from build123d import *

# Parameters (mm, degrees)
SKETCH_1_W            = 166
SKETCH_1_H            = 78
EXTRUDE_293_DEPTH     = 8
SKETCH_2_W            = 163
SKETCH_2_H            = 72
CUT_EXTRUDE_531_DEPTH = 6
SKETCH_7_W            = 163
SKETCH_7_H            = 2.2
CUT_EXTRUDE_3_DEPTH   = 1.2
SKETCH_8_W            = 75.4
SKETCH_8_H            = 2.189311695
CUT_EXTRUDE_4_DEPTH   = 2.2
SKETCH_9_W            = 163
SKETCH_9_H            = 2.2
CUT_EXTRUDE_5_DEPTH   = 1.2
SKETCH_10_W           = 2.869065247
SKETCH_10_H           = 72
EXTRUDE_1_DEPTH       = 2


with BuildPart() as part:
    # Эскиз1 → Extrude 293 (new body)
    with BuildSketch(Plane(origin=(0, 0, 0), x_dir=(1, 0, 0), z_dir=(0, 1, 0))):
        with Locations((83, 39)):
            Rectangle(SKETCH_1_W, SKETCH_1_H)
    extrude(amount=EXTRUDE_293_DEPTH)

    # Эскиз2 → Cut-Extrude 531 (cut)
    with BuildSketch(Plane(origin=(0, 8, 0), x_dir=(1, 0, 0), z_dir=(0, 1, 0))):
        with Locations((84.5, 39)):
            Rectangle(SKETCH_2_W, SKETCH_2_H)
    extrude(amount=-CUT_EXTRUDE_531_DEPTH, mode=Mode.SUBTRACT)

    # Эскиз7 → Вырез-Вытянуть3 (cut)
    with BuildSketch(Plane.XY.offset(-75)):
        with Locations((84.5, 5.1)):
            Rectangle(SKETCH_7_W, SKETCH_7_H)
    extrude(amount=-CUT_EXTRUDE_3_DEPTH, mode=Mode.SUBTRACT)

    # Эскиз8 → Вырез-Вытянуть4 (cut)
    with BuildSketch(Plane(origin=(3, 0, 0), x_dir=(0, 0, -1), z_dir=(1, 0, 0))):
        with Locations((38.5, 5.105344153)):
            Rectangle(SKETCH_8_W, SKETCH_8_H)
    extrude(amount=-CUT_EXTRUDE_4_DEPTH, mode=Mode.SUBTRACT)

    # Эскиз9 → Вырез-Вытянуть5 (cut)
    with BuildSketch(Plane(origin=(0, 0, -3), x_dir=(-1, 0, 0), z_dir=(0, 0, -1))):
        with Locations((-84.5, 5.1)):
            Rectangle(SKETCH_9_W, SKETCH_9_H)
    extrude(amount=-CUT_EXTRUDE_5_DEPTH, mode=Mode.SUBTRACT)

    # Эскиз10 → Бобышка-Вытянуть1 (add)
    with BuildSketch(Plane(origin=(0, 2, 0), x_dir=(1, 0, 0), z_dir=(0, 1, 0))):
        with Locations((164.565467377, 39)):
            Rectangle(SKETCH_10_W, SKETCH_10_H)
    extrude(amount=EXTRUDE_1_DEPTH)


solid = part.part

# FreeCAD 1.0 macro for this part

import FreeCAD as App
import Part
import Sketcher
Q = App.Units.Quantity

doc = App.newDocument("Part")
params = doc.addObject("Spreadsheet::Sheet", "Params")
for row, (alias, value) in enumerate([
    ("sketch1_width", "166 mm"),
    ("sketch1_height", "78 mm"),
    ("pad1_length", "8 mm"),
    ("sketch2_width", "163 mm"),
    ("sketch2_height", "72 mm"),
    ("pocket1_length", "6 mm"),
    ("sketch3_width", "163 mm"),
    ("sketch3_height", "2.2 mm"),
    ("pocket2_length", "1.2 mm"),
    ("sketch4_height", "75.4 mm"),
    ("pocket3_length", "2.2 mm"),
    ("sketch5_width", "163 mm"),
    ("sketch5_height", "2.2 mm"),
    ("pocket4_length", "1.2 mm"),
    ("sketch6_height", "72 mm"),
    ("pad2_length", "2 mm"),
], start=1):
    params.set(f"A{row}", alias)
    params.set(f"B{row}", "=" + value)
    params.setAlias(f"B{row}", alias)

body = doc.addObject("PartDesign::Body", "Body")

# Sketch on XZ plane
sketch1 = body.newObject("Sketcher::SketchObject", "Sketch")
sketch1.AttachmentSupport = (doc.getObject("XZ_Plane"), [""])
sketch1.MapMode = "FlatFace"
sketch1.addGeometry([
    Part.LineSegment(App.Vector(0, -78, 0), App.Vector(0, 0, 0)),
    Part.LineSegment(App.Vector(0, 0, 0), App.Vector(166, 0, 0)),
    Part.LineSegment(App.Vector(166, 0, 0), App.Vector(166, -78, 0)),
    Part.LineSegment(App.Vector(166, -78, 0), App.Vector(0, -78, 0)),
], False)
sketch1.addConstraint([
    Sketcher.Constraint("Coincident", 0, 2, 1, 1),
    Sketcher.Constraint("Coincident", 1, 2, 2, 1),
    Sketcher.Constraint("Coincident", 2, 2, 3, 1),
    Sketcher.Constraint("Coincident", 3, 2, 0, 1),
    Sketcher.Constraint("Vertical", 0),
    Sketcher.Constraint("Horizontal", 1),
    Sketcher.Constraint("Vertical", 2),
    Sketcher.Constraint("Horizontal", 3),
    Sketcher.Constraint("Coincident", 0, 2, -1, 1),
    Sketcher.Constraint("DistanceX", 1, 1, 1, 2, Q("166 mm")),
    Sketcher.Constraint("DistanceY", 0, 1, 0, 2, Q("78 mm")),
])
sketch1.setExpression("Constraints[9]", "Params.sketch1_width")
sketch1.setExpression("Constraints[10]", "Params.sketch1_height")
pad1 = body.newObject("PartDesign::Pad", "Pad")
pad1.Profile = sketch1
pad1.setExpression("Length", "Params.pad1_length")
pad1.Reversed = True

# Sketch on XZ plane
sketch2 = body.newObject("Sketcher::SketchObject", "Sketch001")
sketch2.AttachmentSupport = (doc.getObject("XZ_Plane"), [""])
sketch2.MapMode = "FlatFace"
sketch2.AttachmentOffset = App.Placement(App.Vector(0, 0, -8), App.Rotation())
sketch2.addGeometry([
    Part.LineSegment(App.Vector(3, -75, 0), App.Vector(3, -3, 0)),
    Part.LineSegment(App.Vector(3, -3, 0), App.Vector(166, -3, 0)),
    Part.LineSegment(App.Vector(166, -3, 0), App.Vector(166, -75, 0)),
    Part.LineSegment(App.Vector(166, -75, 0), App.Vector(3, -75, 0)),
], False)
sketch2.addConstraint([
    Sketcher.Constraint("Coincident", 0, 2, 1, 1),
    Sketcher.Constraint("Coincident", 1, 2, 2, 1),
    Sketcher.Constraint("Coincident", 2, 2, 3, 1),
    Sketcher.Constraint("Coincident", 3, 2, 0, 1),
    Sketcher.Constraint("Vertical", 0),
    Sketcher.Constraint("Horizontal", 1),
    Sketcher.Constraint("Vertical", 2),
    Sketcher.Constraint("Horizontal", 3),
    Sketcher.Constraint("DistanceX", 1, 1, 1, 2, Q("163 mm")),
    Sketcher.Constraint("DistanceY", 0, 1, 0, 2, Q("72 mm")),
    Sketcher.Constraint("DistanceX", -1, 1, 0, 2, Q("3 mm")),
    Sketcher.Constraint("DistanceY", 0, 2, -1, 1, Q("3 mm")),
])
sketch2.setExpression("Constraints[8]", "Params.sketch2_width")
sketch2.setExpression("Constraints[9]", "Params.sketch2_height")
pocket1 = body.newObject("PartDesign::Pocket", "Pocket")
pocket1.Profile = sketch2
pocket1.setExpression("Length", "Params.pocket1_length")
pocket1.Reversed = True

# Sketch on XY plane
sketch3 = body.newObject("Sketcher::SketchObject", "Sketch002")
sketch3.AttachmentSupport = (doc.getObject("XY_Plane"), [""])
sketch3.MapMode = "FlatFace"
sketch3.AttachmentOffset = App.Placement(App.Vector(0, 0, -75), App.Rotation())
sketch3.addGeometry([
    Part.LineSegment(App.Vector(3, 6.2, 0), App.Vector(3, 4, 0)),
    Part.LineSegment(App.Vector(3, 4, 0), App.Vector(166, 4, 0)),
    Part.LineSegment(App.Vector(166, 4, 0), App.Vector(166, 6.2, 0)),
    Part.LineSegment(App.Vector(166, 6.2, 0), App.Vector(3, 6.2, 0)),
], False)
sketch3.addConstraint([
    Sketcher.Constraint("Coincident", 0, 2, 1, 1),
    Sketcher.Constraint("Coincident", 1, 2, 2, 1),
    Sketcher.Constraint("Coincident", 2, 2, 3, 1),
    Sketcher.Constraint("Coincident", 3, 2, 0, 1),
    Sketcher.Constraint("Vertical", 0),
    Sketcher.Constraint("Horizontal", 1),
    Sketcher.Constraint("Vertical", 2),
    Sketcher.Constraint("Horizontal", 3),
    Sketcher.Constraint("DistanceX", 1, 1, 1, 2, Q("163 mm")),
    Sketcher.Constraint("DistanceY", 0, 2, 0, 1, Q("2.2 mm")),
    Sketcher.Constraint("DistanceX", -1, 1, 0, 2, Q("3 mm")),
    Sketcher.Constraint("DistanceY", -1, 1, 0, 2, Q("4 mm")),
])
sketch3.setExpression("Constraints[8]", "Params.sketch3_width")
sketch3.setExpression("Constraints[9]", "Params.sketch3_height")
pocket2 = body.newObject("PartDesign::Pocket", "Pocket001")
pocket2.Profile = sketch3
pocket2.setExpression("Length", "Params.pocket2_length")

# Sketch on YZ plane
sketch4 = body.newObject("Sketcher::SketchObject", "Sketch003")
sketch4.AttachmentSupport = (doc.getObject("YZ_Plane"), [""])
sketch4.MapMode = "FlatFace"
sketch4.AttachmentOffset = App.Placement(App.Vector(0, 0, 3), App.Rotation())
sketch4.addGeometry([
    Part.LineSegment(App.Vector(6.2, -0.8, 0), App.Vector(4, -0.8, 0)),
    Part.LineSegment(App.Vector(4, -0.8, 0), App.Vector(4, -76.2, 0)),
    Part.LineSegment(App.Vector(4, -76.2, 0), App.Vector(6.2, -76.2, 0)),
    Part.LineSegment(App.Vector(6.2, -76.2, 0), App.Vector(6.2, -0.8, 0)),
], False)
sketch4.addConstraint([
    Sketcher.Constraint("Coincident", 0, 2, 1, 1),
    Sketcher.Constraint("Coincident", 1, 2, 2, 1),
    Sketcher.Constraint("Coincident", 2, 2, 3, 1),
    Sketcher.Constraint("Coincident", 3, 2, 0, 1),
    Sketcher.Constraint("Horizontal", 0),
    Sketcher.Constraint("Vertical", 1),
    Sketcher.Constraint("Horizontal", 2),
    Sketcher.Constraint("Vertical", 3),
    Sketcher.Constraint("DistanceY", 1, 2, 1, 1, Q("75.4 mm")),
    Sketcher.Constraint("DistanceY", 0, 2, -1, 1, Q("0.8 mm")),
    Sketcher.Constraint("DistanceX", -1, 1, 2, 2, Q("6.2 mm")),
    Sketcher.Constraint("DistanceX", 0, 2, 0, 1, Q("2.189312 mm")),
])
sketch4.setExpression("Constraints[8]", "Params.sketch4_height")
pocket3 = body.newObject("PartDesign::Pocket", "Pocket002")
pocket3.Profile = sketch4
pocket3.setExpression("Length", "Params.pocket3_length")

# Sketch on XY plane
sketch5 = body.newObject("Sketcher::SketchObject", "Sketch004")
sketch5.AttachmentSupport = (doc.getObject("XY_Plane"), [""])
sketch5.MapMode = "FlatFace"
sketch5.AttachmentOffset = App.Placement(App.Vector(0, 0, -3), App.Rotation())
sketch5.addGeometry([
    Part.LineSegment(App.Vector(166, 6.2, 0), App.Vector(166, 4, 0)),
    Part.LineSegment(App.Vector(166, 4, 0), App.Vector(3, 4, 0)),
    Part.LineSegment(App.Vector(3, 4, 0), App.Vector(3, 6.2, 0)),
    Part.LineSegment(App.Vector(3, 6.2, 0), App.Vector(166, 6.2, 0)),
], False)
sketch5.addConstraint([
    Sketcher.Constraint("Coincident", 0, 2, 1, 1),
    Sketcher.Constraint("Coincident", 1, 2, 2, 1),
    Sketcher.Constraint("Coincident", 2, 2, 3, 1),
    Sketcher.Constraint("Coincident", 3, 2, 0, 1),
    Sketcher.Constraint("Vertical", 0),
    Sketcher.Constraint("Horizontal", 1),
    Sketcher.Constraint("Vertical", 2),
    Sketcher.Constraint("Horizontal", 3),
    Sketcher.Constraint("DistanceX", 1, 2, 1, 1, Q("163 mm")),
    Sketcher.Constraint("DistanceY", 0, 2, 0, 1, Q("2.2 mm")),
    Sketcher.Constraint("DistanceX", -1, 1, 0, 2, Q("166 mm")),
    Sketcher.Constraint("DistanceY", -1, 1, 0, 2, Q("4 mm")),
])
sketch5.setExpression("Constraints[8]", "Params.sketch5_width")
sketch5.setExpression("Constraints[9]", "Params.sketch5_height")
pocket4 = body.newObject("PartDesign::Pocket", "Pocket003")
pocket4.Profile = sketch5
pocket4.setExpression("Length", "Params.pocket4_length")
pocket4.Reversed = True

# Sketch on XZ plane
sketch6 = body.newObject("Sketcher::SketchObject", "Sketch005")
sketch6.AttachmentSupport = (doc.getObject("XZ_Plane"), [""])
sketch6.MapMode = "FlatFace"
sketch6.AttachmentOffset = App.Placement(App.Vector(0, 0, -2), App.Rotation())
sketch6.addGeometry([
    Part.LineSegment(App.Vector(163.1, -75, 0), App.Vector(163.1, -3, 0)),
    Part.LineSegment(App.Vector(163.1, -3, 0), App.Vector(166, -3, 0)),
    Part.LineSegment(App.Vector(166, -3, 0), App.Vector(166, -75, 0)),
    Part.LineSegment(App.Vector(166, -75, 0), App.Vector(163.1, -75, 0)),
], False)
sketch6.addConstraint([
    Sketcher.Constraint("Coincident", 0, 2, 1, 1),
    Sketcher.Constraint("Coincident", 1, 2, 2, 1),
    Sketcher.Constraint("Coincident", 2, 2, 3, 1),
    Sketcher.Constraint("Coincident", 3, 2, 0, 1),
    Sketcher.Constraint("Vertical", 0),
    Sketcher.Constraint("Horizontal", 1),
    Sketcher.Constraint("Vertical", 2),
    Sketcher.Constraint("Horizontal", 3),
    Sketcher.Constraint("DistanceY", 0, 1, 0, 2, Q("72 mm")),
    Sketcher.Constraint("DistanceY", 0, 2, -1, 1, Q("3 mm")),
    Sketcher.Constraint("DistanceX", -1, 1, 1, 2, Q("166 mm")),
    Sketcher.Constraint("DistanceX", 1, 1, 1, 2, Q("2.869065 mm")),
])
sketch6.setExpression("Constraints[8]", "Params.sketch6_height")
pad2 = body.newObject("PartDesign::Pad", "Pad001")
pad2.Profile = sketch6
pad2.setExpression("Length", "Params.pad2_length")
pad2.Reversed = True

doc.recompute()
